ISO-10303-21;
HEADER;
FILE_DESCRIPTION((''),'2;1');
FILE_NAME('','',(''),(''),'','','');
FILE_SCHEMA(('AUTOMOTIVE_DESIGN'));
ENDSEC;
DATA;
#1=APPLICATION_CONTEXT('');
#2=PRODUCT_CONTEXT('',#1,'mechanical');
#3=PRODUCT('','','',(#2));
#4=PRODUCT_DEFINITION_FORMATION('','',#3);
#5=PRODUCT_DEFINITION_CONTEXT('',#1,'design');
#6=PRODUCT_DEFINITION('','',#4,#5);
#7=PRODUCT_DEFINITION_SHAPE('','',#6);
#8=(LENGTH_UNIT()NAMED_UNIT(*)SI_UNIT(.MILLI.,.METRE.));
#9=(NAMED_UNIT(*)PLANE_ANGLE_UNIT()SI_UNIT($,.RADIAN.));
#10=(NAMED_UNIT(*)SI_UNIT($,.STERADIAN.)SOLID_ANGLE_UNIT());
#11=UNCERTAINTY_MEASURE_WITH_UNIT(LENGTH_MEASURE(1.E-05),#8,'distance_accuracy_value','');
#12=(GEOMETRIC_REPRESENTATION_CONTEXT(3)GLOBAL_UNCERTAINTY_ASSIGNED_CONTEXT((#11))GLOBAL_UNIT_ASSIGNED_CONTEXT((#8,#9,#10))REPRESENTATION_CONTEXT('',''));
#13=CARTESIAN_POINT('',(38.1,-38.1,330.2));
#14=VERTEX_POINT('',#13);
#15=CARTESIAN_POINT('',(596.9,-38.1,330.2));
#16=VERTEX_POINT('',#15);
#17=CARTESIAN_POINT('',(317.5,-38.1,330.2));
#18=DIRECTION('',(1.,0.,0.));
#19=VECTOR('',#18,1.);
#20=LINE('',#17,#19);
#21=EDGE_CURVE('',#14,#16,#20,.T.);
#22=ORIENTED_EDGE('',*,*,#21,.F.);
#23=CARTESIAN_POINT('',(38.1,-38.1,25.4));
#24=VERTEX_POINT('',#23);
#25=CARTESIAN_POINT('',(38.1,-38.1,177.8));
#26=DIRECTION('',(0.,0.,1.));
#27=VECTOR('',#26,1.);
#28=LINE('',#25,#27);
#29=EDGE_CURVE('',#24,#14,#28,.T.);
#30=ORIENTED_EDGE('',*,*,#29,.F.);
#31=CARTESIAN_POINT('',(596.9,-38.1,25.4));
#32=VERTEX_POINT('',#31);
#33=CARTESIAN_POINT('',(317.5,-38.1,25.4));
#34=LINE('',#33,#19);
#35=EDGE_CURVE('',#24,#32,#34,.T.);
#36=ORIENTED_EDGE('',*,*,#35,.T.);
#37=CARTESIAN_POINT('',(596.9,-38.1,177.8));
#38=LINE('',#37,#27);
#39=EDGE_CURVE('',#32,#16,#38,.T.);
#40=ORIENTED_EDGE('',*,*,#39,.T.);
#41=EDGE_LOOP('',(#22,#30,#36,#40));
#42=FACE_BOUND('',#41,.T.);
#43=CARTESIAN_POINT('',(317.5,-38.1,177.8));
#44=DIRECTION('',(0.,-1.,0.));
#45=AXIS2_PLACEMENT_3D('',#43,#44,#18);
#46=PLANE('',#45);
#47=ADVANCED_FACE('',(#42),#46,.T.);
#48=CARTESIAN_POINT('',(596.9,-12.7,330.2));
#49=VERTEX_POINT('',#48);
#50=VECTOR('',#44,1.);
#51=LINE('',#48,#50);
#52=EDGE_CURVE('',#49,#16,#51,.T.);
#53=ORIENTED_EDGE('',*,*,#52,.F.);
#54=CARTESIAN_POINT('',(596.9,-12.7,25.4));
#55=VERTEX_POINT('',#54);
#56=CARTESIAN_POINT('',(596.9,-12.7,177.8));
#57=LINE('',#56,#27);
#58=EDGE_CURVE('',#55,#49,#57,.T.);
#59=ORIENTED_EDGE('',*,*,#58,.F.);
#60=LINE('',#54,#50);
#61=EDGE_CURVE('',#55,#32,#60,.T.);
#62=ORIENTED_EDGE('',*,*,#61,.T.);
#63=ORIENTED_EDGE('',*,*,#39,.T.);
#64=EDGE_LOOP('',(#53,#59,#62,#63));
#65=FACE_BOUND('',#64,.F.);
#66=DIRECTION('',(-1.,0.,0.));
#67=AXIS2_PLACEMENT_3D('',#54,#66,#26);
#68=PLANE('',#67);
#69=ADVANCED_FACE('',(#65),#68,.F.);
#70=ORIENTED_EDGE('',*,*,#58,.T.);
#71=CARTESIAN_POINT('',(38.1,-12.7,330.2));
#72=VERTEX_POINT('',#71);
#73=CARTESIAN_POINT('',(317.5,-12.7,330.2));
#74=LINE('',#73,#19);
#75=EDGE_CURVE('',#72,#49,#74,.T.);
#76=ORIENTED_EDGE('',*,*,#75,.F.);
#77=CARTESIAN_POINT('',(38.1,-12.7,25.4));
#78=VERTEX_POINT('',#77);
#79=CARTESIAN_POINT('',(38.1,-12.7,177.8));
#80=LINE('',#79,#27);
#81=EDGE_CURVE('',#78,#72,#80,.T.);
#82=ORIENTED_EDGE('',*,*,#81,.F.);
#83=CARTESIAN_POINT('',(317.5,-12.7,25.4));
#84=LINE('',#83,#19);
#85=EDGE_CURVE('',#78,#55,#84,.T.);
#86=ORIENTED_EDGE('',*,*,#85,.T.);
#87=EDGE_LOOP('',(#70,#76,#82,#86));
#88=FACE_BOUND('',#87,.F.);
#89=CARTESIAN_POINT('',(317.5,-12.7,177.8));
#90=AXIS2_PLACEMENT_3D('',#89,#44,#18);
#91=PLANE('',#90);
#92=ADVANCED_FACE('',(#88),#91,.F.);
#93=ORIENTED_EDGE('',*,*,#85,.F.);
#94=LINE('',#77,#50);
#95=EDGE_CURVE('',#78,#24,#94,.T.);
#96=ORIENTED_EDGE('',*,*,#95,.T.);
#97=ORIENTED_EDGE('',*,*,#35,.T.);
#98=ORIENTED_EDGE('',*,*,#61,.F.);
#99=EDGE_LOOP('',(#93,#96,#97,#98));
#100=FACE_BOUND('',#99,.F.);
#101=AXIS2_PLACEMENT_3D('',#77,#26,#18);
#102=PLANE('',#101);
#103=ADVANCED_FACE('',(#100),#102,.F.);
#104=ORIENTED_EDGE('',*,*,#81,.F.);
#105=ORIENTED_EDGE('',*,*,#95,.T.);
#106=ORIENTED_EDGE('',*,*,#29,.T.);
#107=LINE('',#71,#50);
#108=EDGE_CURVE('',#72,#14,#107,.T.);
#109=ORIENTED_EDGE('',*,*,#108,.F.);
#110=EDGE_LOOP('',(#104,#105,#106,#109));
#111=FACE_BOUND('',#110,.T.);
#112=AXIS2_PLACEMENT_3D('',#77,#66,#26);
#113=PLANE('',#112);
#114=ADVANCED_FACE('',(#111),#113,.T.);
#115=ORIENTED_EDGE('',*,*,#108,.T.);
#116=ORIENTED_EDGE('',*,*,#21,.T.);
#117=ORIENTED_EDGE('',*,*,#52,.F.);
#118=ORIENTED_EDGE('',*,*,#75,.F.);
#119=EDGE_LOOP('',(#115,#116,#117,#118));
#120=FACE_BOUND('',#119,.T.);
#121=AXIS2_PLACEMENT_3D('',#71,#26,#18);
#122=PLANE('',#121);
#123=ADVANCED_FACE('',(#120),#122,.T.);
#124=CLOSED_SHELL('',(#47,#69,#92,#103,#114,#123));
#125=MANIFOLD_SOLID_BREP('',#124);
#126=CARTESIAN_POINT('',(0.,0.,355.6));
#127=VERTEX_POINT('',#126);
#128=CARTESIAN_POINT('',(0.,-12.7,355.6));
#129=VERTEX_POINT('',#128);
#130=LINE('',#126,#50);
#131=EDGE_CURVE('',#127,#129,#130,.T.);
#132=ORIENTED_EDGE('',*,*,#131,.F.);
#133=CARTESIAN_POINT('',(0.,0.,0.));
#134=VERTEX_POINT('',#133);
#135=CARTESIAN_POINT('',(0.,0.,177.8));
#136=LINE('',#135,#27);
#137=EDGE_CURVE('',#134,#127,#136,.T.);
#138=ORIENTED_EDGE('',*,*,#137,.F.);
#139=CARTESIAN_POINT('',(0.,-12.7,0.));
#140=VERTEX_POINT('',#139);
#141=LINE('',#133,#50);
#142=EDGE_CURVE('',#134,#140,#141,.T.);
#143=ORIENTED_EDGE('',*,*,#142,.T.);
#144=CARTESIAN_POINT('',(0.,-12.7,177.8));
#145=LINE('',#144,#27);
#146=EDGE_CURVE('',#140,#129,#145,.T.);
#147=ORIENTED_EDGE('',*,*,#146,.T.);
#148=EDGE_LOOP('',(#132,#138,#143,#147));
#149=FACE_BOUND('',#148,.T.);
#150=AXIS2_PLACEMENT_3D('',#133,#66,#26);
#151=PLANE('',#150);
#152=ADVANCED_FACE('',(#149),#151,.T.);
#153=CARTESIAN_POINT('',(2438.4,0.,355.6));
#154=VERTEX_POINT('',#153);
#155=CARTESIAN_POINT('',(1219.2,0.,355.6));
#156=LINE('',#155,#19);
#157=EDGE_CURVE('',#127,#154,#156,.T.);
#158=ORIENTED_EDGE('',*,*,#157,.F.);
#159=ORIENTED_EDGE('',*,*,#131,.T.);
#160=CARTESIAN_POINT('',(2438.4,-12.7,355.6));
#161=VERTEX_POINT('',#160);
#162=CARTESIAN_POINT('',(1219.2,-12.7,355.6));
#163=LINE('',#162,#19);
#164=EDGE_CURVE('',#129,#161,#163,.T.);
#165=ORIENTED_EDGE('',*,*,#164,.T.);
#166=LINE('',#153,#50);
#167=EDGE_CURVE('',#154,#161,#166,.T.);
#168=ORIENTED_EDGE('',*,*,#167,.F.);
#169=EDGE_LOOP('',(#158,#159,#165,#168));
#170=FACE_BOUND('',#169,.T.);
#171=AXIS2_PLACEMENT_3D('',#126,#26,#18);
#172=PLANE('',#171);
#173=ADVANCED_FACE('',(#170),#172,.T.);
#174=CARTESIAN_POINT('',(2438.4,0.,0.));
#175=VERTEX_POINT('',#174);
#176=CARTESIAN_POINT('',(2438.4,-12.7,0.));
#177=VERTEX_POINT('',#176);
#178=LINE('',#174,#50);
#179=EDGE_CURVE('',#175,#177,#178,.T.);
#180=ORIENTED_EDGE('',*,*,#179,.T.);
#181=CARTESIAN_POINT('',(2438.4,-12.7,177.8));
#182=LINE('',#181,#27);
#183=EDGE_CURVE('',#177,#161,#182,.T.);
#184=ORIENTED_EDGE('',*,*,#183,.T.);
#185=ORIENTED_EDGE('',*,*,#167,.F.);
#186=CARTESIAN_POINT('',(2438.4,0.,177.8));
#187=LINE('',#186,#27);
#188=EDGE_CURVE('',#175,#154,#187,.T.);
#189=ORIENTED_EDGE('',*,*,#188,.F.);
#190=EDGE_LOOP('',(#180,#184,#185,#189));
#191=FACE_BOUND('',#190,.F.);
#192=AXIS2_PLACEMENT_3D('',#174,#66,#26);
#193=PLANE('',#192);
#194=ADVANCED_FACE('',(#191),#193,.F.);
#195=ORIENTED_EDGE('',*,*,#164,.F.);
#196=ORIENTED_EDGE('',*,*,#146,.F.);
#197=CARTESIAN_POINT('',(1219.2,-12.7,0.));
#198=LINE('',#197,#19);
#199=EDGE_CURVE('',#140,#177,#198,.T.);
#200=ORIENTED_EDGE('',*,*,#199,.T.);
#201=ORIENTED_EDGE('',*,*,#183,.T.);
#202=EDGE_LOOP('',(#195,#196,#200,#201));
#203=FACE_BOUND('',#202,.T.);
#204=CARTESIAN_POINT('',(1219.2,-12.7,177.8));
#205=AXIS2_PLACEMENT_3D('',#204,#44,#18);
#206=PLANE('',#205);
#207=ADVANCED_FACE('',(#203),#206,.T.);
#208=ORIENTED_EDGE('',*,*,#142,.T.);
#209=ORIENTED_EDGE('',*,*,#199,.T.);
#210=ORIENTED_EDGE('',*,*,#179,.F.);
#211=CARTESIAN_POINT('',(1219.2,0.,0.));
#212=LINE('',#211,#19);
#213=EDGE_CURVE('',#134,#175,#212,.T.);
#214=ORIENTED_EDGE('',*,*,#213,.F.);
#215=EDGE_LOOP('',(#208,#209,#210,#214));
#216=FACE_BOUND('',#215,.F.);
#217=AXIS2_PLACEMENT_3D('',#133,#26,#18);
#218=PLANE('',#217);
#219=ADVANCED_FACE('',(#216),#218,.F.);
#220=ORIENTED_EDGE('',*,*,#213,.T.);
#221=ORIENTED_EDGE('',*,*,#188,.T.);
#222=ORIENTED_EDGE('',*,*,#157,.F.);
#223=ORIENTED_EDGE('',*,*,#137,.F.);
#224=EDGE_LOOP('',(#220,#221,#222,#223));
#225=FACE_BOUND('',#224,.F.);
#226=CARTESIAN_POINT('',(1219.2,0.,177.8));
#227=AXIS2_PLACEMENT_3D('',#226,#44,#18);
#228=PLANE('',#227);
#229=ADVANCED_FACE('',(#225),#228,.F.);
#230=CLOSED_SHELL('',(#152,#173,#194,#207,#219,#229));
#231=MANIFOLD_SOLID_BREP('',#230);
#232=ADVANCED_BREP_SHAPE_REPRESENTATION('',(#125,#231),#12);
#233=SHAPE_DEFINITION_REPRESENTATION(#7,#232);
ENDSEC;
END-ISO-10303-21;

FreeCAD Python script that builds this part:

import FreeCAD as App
import Part
import Sketcher
Q = App.Units.Quantity


def add_polygon(sketch, points):
    """Adds a closed chain of lines whose ends are joined by coincident constraints."""
    first, n = sketch.GeometryCount, len(points)
    for a, b in zip(points, points[1:] + points[:1]):
        sketch.addGeometry(Part.LineSegment(App.Vector(*a, 0), App.Vector(*b, 0)), False)
    for i in range(n):
        sketch.addConstraint(Sketcher.Constraint("Coincident", first + i, 2, first + (i + 1) % n, 1))

doc = App.newDocument("Part")
params = doc.addObject("Spreadsheet::Sheet", "Params")
for row, (alias, value) in enumerate([
    ("sketch1_width", "96 in"),
    ("sketch1_height", "14 in"),
    ("pad1_length", "0.5 in"),
    ("sketch2_width", "22 in"),
    ("sketch2_height", "12 in"),
    ("pad2_length", "1 in"),
], start=1):
    params.set(f"A{row}", alias)
    params.set(f"B{row}", "=" + value)
    params.setAlias(f"B{row}", alias)

body = doc.addObject("PartDesign::Body", "Body")

# Sketch on XZ plane
sketch1 = body.newObject("Sketcher::SketchObject", "Sketch")
sketch1.AttachmentSupport = (doc.getObject("XZ_Plane"), [""])
sketch1.MapMode = "FlatFace"
add_polygon(sketch1, [(0, 356), (0, 0), (2438, 0), (2438, 356)])  # lines 0-3
sketch1.addConstraint(Sketcher.Constraint("Vertical", 0))
sketch1.addConstraint(Sketcher.Constraint("Horizontal", 1))
sketch1.addConstraint(Sketcher.Constraint("Vertical", 2))
sketch1.addConstraint(Sketcher.Constraint("Horizontal", 3))
sketch1.addConstraint(Sketcher.Constraint("Coincident", 0, 2, -1, 1))
sketch1.addConstraint(Sketcher.Constraint("DistanceX", 1, 1, 1, 2, Q("96 in")))
sketch1.addConstraint(Sketcher.Constraint("DistanceY", 0, 2, 0, 1, Q("14 in")))
sketch1.setExpression("Constraints[9]", "Params.sketch1_width")
sketch1.setExpression("Constraints[10]", "Params.sketch1_height")
pad1 = body.newObject("PartDesign::Pad", "Pad")
pad1.Profile = sketch1
pad1.setExpression("Length", "Params.pad1_length")
body2 = doc.addObject("PartDesign::Body", "Body001")

# Sketch on XZ plane
sketch2 = body2.newObject("Sketcher::SketchObject", "Sketch001")
sketch2.AttachmentSupport = (doc.getObject("XZ_Plane001"), [""])
sketch2.MapMode = "FlatFace"
sketch2.AttachmentOffset = App.Placement(App.Vector(0, 0, 0.5 * 25.4), App.Rotation())
add_polygon(sketch2, [(38, 330), (38, 25), (597, 25), (597, 330)])  # lines 0-3
sketch2.addConstraint(Sketcher.Constraint("Vertical", 0))
sketch2.addConstraint(Sketcher.Constraint("Horizontal", 1))
sketch2.addConstraint(Sketcher.Constraint("Vertical", 2))
sketch2.addConstraint(Sketcher.Constraint("Horizontal", 3))
sketch2.addConstraint(Sketcher.Constraint("DistanceX", 1, 1, 1, 2, Q("22 in")))
sketch2.addConstraint(Sketcher.Constraint("DistanceY", 0, 2, 0, 1, Q("12 in")))
sketch2.addConstraint(Sketcher.Constraint("DistanceY", -1, 1, 0, 2, Q("1 in")))
sketch2.addConstraint(Sketcher.Constraint("DistanceX", -1, 1, 0, 2, Q("1.5 in")))
sketch2.setExpression("Constraints[8]", "Params.sketch2_width")
sketch2.setExpression("Constraints[9]", "Params.sketch2_height")
pad2 = body2.newObject("PartDesign::Pad", "Pad001")
pad2.Profile = sketch2
pad2.setExpression("Length", "Params.pad2_length")

doc.recompute()
